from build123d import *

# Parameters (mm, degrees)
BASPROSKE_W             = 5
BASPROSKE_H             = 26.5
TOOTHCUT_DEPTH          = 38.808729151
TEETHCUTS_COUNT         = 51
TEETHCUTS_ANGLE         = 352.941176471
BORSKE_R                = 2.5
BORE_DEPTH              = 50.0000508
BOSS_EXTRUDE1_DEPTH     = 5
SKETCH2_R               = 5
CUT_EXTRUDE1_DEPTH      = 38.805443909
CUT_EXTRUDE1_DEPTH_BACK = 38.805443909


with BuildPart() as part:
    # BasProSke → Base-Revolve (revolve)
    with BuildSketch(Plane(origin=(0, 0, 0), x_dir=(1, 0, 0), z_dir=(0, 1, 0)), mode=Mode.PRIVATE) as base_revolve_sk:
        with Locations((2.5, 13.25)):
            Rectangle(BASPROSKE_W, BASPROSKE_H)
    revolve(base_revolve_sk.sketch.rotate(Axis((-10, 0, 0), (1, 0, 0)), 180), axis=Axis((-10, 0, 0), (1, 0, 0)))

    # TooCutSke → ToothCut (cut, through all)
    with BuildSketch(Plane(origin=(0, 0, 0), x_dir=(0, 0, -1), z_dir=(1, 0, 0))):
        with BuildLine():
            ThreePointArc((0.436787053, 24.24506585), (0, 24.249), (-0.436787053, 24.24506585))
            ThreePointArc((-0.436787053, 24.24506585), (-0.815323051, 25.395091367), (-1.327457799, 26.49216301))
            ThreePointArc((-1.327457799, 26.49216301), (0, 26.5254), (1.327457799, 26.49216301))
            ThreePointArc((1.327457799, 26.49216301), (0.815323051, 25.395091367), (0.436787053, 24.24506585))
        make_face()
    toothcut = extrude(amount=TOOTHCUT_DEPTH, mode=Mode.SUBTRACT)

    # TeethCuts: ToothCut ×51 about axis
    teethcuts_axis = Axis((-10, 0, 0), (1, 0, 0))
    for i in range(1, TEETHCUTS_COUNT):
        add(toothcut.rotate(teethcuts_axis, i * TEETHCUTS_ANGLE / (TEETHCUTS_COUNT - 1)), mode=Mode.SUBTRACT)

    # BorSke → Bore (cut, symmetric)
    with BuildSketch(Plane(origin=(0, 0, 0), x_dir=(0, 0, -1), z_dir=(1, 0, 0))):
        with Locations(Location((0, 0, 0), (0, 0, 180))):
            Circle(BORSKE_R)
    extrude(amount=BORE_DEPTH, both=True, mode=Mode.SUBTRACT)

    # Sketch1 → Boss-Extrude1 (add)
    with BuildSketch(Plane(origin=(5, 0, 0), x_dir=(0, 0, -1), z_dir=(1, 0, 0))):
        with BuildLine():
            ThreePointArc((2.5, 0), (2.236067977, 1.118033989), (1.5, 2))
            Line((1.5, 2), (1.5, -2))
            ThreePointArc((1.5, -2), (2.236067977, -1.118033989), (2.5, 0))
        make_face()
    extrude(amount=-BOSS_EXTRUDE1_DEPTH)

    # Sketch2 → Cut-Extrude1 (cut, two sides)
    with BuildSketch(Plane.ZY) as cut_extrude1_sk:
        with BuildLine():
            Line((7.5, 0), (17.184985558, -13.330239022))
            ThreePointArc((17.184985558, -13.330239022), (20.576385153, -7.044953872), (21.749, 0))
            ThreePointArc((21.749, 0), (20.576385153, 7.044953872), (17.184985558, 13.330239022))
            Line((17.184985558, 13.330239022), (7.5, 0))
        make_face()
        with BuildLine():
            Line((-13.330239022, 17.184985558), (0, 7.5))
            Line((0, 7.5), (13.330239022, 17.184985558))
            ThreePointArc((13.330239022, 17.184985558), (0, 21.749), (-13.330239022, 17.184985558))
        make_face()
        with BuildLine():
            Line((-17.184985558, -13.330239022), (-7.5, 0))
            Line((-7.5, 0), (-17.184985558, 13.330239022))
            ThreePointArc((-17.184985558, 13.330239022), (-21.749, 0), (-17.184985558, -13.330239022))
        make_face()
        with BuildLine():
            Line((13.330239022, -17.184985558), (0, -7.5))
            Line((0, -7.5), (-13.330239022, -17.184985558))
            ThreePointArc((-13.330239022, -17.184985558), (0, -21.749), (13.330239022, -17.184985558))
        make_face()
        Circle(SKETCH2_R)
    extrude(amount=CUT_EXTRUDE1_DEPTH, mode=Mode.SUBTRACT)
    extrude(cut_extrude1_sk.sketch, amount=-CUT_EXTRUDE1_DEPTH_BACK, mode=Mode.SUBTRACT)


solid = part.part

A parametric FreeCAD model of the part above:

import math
import FreeCAD as App
import Part
import Sketcher

V = App.Vector
Q = App.Units.Quantity

doc = App.newDocument("Part")
params = doc.addObject("Spreadsheet::Sheet", "Params")
for row, (alias, value) in enumerate([
    ("sketch1_width", "5 mm"),
    ("sketch1_height", "26.5 mm"),
    ("revolution_angle", "360 deg"),
    ("sketch2_radius", "10.2 mm"),
    ("sketch3_diameter", "5 mm"),
    ("pocket2_length", "100.000102 mm"),
    ("sketch4_radius", "2.5 mm"),
    ("sketch4_width", "4 mm"),
    ("pad1_length", "5 mm"),
    ("sketch5_diameter", "10 mm"),
], start=1):
    params.set(f"A{row}", alias)
    params.set(f"B{row}", "=" + value)
    params.setAlias(f"B{row}", alias)

body = doc.addObject("PartDesign::Body", "Body")

# Sketch on XZ plane
sketch1 = doc.addObject("Sketcher::SketchObject", "Sketch")
body.addObject(sketch1)
sketch1.AttachmentSupport = (doc.XZ_Plane, [""])
sketch1.MapMode = "FlatFace"
sketch1.addGeometry([
    Part.LineSegment(V(0, -26, 0), V(0, 0, 0)),
    Part.LineSegment(V(0, 0, 0), V(5, 0, 0)),
    Part.LineSegment(V(5, 0, 0), V(5, -26, 0)),
    Part.LineSegment(V(5, -26, 0), V(0, -26, 0)),
], False)
sketch1.addConstraint([
    Sketcher.Constraint("Coincident", 0, 2, 1, 1),
    Sketcher.Constraint("Coincident", 1, 2, 2, 1),
    Sketcher.Constraint("Coincident", 2, 2, 3, 1),
    Sketcher.Constraint("Coincident", 3, 2, 0, 1),
    Sketcher.Constraint("Vertical", 0),
    Sketcher.Constraint("Horizontal", 1),
    Sketcher.Constraint("Vertical", 2),
    Sketcher.Constraint("Horizontal", 3),
    Sketcher.Constraint("Coincident", 0, 2, -1, 1),
    Sketcher.Constraint("DistanceX", 1, 1, 1, 2, Q("5 mm")),
    Sketcher.Constraint("DistanceY", 0, 1, 0, 2, Q("26.5 mm")),
])
sketch1.setExpression("Constraints[9]", "Params.sketch1_width")
sketch1.setExpression("Constraints[10]", "Params.sketch1_height")
revolution = doc.addObject("PartDesign::Revolution", "Revolution")
body.addObject(revolution)
revolution.Profile = sketch1
revolution.ReferenceAxis = (sketch1, ["H_Axis"])
revolution.setExpression("Angle", "Params.revolution_angle")

# Sketch on YZ plane
sketch2 = doc.addObject("Sketcher::SketchObject", "Sketch001")
body.addObject(sketch2)
sketch2.AttachmentSupport = (doc.YZ_Plane, [""])
sketch2.MapMode = "FlatFace"
sketch2.addGeometry([
    Part.ArcOfCircle(Part.Circle(V(0, 0, 0), V(0, 0, 1), 24.2), math.radians(-1.03), math.radians(1.03)),
    Part.ArcOfCircle(Part.Circle(V(21.6, -10.3, 0), V(0, 0, 1), 10.2), math.radians(61.57), math.radians(75.18)),
    Part.ArcOfCircle(Part.Circle(V(0, 0, 0), V(0, 0, 1), 26.5), math.radians(-2.87), math.radians(2.87)),
    Part.ArcOfCircle(Part.Circle(V(21.6, 10.3, 0), V(0, 0, 1), 10.2), math.radians(-75.18), math.radians(-61.57)),
], False)
sketch2.addConstraint([
    Sketcher.Constraint("Coincident", 0, 1, 1, 2),
    Sketcher.Constraint("Coincident", 1, 1, 2, 1),
    Sketcher.Constraint("Coincident", 2, 2, 3, 2),
    Sketcher.Constraint("Coincident", 3, 1, 0, 2),
    Sketcher.Constraint("Coincident", 0, 3, -1, 1),
    Sketcher.Constraint("Coincident", 2, 3, -1, 1),
    Sketcher.Constraint("Equal", 1, 3),
    Sketcher.Constraint("Symmetric", 1, 3, 3, 3, -1),
    Sketcher.Constraint("Radius", 1, Q("10.2 mm")),
    Sketcher.Constraint("Radius", 0, Q("24.249 mm")),
    Sketcher.Constraint("Radius", 2, Q("26.5254 mm")),
    Sketcher.Constraint("DistanceX", -1, 1, 1, 3, Q("21.636639 mm")),
    Sketcher.Constraint("DistanceY", 1, 3, 3, 3, Q("20.595248 mm")),
])
sketch2.setExpression("Constraints[8]", "Params.sketch2_radius")
pocket1 = doc.addObject("PartDesign::Pocket", "Pocket")
body.addObject(pocket1)
pocket1.Profile = sketch2
pocket1.Type = "ThroughAll"
pocket1.Reversed = True
doc.recompute()

polarpattern = doc.addObject("PartDesign::PolarPattern", "PolarPattern")
body.addObject(polarpattern)
polarpattern.Originals = [pocket1]
polarpattern.Axis = (doc.X_Axis, [""])
polarpattern.Angle = 360
polarpattern.Occurrences = 51
body.Tip = polarpattern

# Sketch on YZ plane
sketch3 = doc.addObject("Sketcher::SketchObject", "Sketch002")
body.addObject(sketch3)
sketch3.AttachmentSupport = (doc.YZ_Plane, [""])
sketch3.MapMode = "FlatFace"
sketch3.addGeometry(Part.Circle(V(0, 0, 0), V(0, 0, 1), 2.5), False)
sketch3.addConstraint([
    Sketcher.Constraint("Coincident", 0, 3, -1, 1),
    Sketcher.Constraint("Diameter", 0, Q("5 mm")),
])
sketch3.setExpression("Constraints[1]", "Params.sketch3_diameter")
pocket2 = doc.addObject("PartDesign::Pocket", "Pocket001")
body.addObject(pocket2)
pocket2.Profile = sketch3
pocket2.setExpression("Length", "Params.pocket2_length")
pocket2.Midplane = True

# Sketch on YZ plane
sketch4 = doc.addObject("Sketcher::SketchObject", "Sketch003")
body.addObject(sketch4)
sketch4.AttachmentSupport = (doc.YZ_Plane, [""])
sketch4.MapMode = "FlatFace"
sketch4.AttachmentOffset = App.Placement(V(0, 0, 5), App.Rotation())
sketch4.addGeometry([
    Part.ArcOfCircle(Part.Circle(V(0, 0, 0), V(0, 0, 1), 2.5), math.radians(-90), math.radians(-37)),
    Part.LineSegment(V(2, -1.5, 0), V(-2, -1.5, 0)),
    Part.ArcOfCircle(Part.Circle(V(0, 0, 0), V(0, 0, 1), 2.5), math.radians(-143), math.radians(-90)),
], False)
sketch4.addConstraint([
    Sketcher.Constraint("Coincident", 0, 2, 1, 1),
    Sketcher.Constraint("Coincident", 1, 2, 2, 1),
    Sketcher.Constraint("Tangent", 2, 2, 0, 1),
    Sketcher.Constraint("Horizontal", 1),
    Sketcher.Constraint("Coincident", 0, 3, -1, 1),
    Sketcher.Constraint("Equal", 0, 2),
    Sketcher.Constraint("PointOnObject", 2, 2, -2),
    Sketcher.Constraint("Radius", 0, Q("2.5 mm")),
    Sketcher.Constraint("DistanceX", 1, 2, 1, 1, Q("4 mm")),
])
sketch4.setExpression("Constraints[7]", "Params.sketch4_radius")
sketch4.setExpression("Constraints[8]", "Params.sketch4_width")
pad1 = doc.addObject("PartDesign::Pad", "Pad")
body.addObject(pad1)
pad1.Profile = sketch4
pad1.setExpression("Length", "Params.pad1_length")
pad1.Reversed = True

# Sketch on YZ plane
sketch5 = doc.addObject("Sketcher::SketchObject", "Sketch004")
body.addObject(sketch5)
sketch5.AttachmentSupport = (doc.YZ_Plane, [""])
sketch5.MapMode = "FlatFace"
sketch5.addGeometry([
    Part.LineSegment(V(0, 8, 0), V(-13, 17, 0)),  # 0
    Part.ArcOfCircle(Part.Circle(V(0, 0, 0), V(0, 0, 1), 22), math.radians(90), math.radians(128)),  # 1
    Part.ArcOfCircle(Part.Circle(V(0, 0, 0), V(0, 0, 1), 22), math.radians(52), math.radians(90)),  # 2
    Part.LineSegment(V(13, 17, 0), V(0, 8, 0)),  # 3
    Part.LineSegment(V(17, -13, 0), V(8, 0, 0)),  # 4
    Part.LineSegment(V(8, 0, 0), V(17, 13, 0)),  # 5
    Part.ArcOfCircle(Part.Circle(V(0, 0, 0), V(0, 0, 1), 22), math.radians(-38), math.radians(38)),  # 6
    Part.LineSegment(V(-13, -17, 0), V(0, -8, 0)),  # 7
    Part.LineSegment(V(0, -8, 0), V(13, -17, 0)),  # 8
    Part.ArcOfCircle(Part.Circle(V(0, 0, 0), V(0, 0, 1), 22), math.radians(-128), math.radians(-52)),  # 9
    Part.LineSegment(V(-17, 13, 0), V(-8, 0, 0)),  # 10
    Part.LineSegment(V(-8, 0, 0), V(-17, -13, 0)),  # 11
    Part.ArcOfCircle(Part.Circle(V(0, 0, 0), V(0, 0, 1), 22), math.radians(142), math.radians(218)),  # 12
    Part.Circle(V(0, 0, 0), V(0, 0, 1), 5),  # 13
], False)
sketch5.addConstraint([
    Sketcher.Constraint("Coincident", 0, 2, 1, 2),
    Sketcher.Constraint("Tangent", 1, 1, 2, 2),
    Sketcher.Constraint("Coincident", 2, 1, 3, 1),
    Sketcher.Constraint("Coincident", 3, 2, 0, 1),
    Sketcher.Constraint("Coincident", 4, 2, 5, 1),
    Sketcher.Constraint("Coincident", 5, 2, 6, 2),
    Sketcher.Constraint("Coincident", 6, 1, 4, 1),
    Sketcher.Constraint("Coincident", 7, 2, 8, 1),
    Sketcher.Constraint("Coincident", 8, 2, 9, 2),
    Sketcher.Constraint("Coincident", 9, 1, 7, 1),
    Sketcher.Constraint("Coincident", 10, 2, 11, 1),
    Sketcher.Constraint("Coincident", 11, 2, 12, 2),
    Sketcher.Constraint("Coincident", 12, 1, 10, 1),
    Sketcher.Constraint("Coincident", 1, 3, -1, 1),
    Sketcher.Constraint("Coincident", 6, 3, -1, 1),
    Sketcher.Constraint("Coincident", 9, 3, -1, 1),
    Sketcher.Constraint("Coincident", 12, 3, -1, 1),
    Sketcher.Constraint("Coincident", 13, 3, -1, 1),
    Sketcher.Constraint("Equal", 1, 2),
    Sketcher.Constraint("Equal", 2, 6),
    Sketcher.Constraint("Equal", 6, 9),
    Sketcher.Constraint("Equal", 9, 12),
    Sketcher.Constraint("Symmetric", 3, 2, 7, 2, -1, 1),
    Sketcher.Constraint("Symmetric", 4, 2, 10, 2, -1, 1),
    Sketcher.Constraint("PointOnObject", 1, 1, -2),
    Sketcher.Constraint("PointOnObject", 3, 2, -2),
    Sketcher.Constraint("PointOnObject", 4, 2, -1),
    Sketcher.Constraint("Perpendicular", 3, 4),
    Sketcher.Constraint("Perpendicular", 0, 5),
    Sketcher.Constraint("Perpendicular", 4, 7),
    Sketcher.Constraint("Perpendicular", 5, 8),
    Sketcher.Constraint("Perpendicular", 7, 10),
    Sketcher.Constraint("Perpendicular", 8, 11),
    Sketcher.Constraint("Horizontal", 0, 2, 2, 1),
    Sketcher.Constraint("Equal", 3, 4),
    Sketcher.Constraint("Diameter", 13, Q("10 mm")),
    Sketcher.Constraint("Angle", 0, Q("144 deg")),
    Sketcher.Constraint("Radius", 1, Q("21.749 mm")),
    Sketcher.Constraint("DistanceY", -1, 1, 3, 2, Q("7.5 mm")),
])
sketch5.setExpression("Constraints[35]", "Params.sketch5_diameter")
pocket3 = doc.addObject("PartDesign::Pocket", "Pocket002")
body.addObject(pocket3)
pocket3.Profile = sketch5
pocket3.Type = "ThroughAll"
pocket3.Midplane = True

doc.recompute()
